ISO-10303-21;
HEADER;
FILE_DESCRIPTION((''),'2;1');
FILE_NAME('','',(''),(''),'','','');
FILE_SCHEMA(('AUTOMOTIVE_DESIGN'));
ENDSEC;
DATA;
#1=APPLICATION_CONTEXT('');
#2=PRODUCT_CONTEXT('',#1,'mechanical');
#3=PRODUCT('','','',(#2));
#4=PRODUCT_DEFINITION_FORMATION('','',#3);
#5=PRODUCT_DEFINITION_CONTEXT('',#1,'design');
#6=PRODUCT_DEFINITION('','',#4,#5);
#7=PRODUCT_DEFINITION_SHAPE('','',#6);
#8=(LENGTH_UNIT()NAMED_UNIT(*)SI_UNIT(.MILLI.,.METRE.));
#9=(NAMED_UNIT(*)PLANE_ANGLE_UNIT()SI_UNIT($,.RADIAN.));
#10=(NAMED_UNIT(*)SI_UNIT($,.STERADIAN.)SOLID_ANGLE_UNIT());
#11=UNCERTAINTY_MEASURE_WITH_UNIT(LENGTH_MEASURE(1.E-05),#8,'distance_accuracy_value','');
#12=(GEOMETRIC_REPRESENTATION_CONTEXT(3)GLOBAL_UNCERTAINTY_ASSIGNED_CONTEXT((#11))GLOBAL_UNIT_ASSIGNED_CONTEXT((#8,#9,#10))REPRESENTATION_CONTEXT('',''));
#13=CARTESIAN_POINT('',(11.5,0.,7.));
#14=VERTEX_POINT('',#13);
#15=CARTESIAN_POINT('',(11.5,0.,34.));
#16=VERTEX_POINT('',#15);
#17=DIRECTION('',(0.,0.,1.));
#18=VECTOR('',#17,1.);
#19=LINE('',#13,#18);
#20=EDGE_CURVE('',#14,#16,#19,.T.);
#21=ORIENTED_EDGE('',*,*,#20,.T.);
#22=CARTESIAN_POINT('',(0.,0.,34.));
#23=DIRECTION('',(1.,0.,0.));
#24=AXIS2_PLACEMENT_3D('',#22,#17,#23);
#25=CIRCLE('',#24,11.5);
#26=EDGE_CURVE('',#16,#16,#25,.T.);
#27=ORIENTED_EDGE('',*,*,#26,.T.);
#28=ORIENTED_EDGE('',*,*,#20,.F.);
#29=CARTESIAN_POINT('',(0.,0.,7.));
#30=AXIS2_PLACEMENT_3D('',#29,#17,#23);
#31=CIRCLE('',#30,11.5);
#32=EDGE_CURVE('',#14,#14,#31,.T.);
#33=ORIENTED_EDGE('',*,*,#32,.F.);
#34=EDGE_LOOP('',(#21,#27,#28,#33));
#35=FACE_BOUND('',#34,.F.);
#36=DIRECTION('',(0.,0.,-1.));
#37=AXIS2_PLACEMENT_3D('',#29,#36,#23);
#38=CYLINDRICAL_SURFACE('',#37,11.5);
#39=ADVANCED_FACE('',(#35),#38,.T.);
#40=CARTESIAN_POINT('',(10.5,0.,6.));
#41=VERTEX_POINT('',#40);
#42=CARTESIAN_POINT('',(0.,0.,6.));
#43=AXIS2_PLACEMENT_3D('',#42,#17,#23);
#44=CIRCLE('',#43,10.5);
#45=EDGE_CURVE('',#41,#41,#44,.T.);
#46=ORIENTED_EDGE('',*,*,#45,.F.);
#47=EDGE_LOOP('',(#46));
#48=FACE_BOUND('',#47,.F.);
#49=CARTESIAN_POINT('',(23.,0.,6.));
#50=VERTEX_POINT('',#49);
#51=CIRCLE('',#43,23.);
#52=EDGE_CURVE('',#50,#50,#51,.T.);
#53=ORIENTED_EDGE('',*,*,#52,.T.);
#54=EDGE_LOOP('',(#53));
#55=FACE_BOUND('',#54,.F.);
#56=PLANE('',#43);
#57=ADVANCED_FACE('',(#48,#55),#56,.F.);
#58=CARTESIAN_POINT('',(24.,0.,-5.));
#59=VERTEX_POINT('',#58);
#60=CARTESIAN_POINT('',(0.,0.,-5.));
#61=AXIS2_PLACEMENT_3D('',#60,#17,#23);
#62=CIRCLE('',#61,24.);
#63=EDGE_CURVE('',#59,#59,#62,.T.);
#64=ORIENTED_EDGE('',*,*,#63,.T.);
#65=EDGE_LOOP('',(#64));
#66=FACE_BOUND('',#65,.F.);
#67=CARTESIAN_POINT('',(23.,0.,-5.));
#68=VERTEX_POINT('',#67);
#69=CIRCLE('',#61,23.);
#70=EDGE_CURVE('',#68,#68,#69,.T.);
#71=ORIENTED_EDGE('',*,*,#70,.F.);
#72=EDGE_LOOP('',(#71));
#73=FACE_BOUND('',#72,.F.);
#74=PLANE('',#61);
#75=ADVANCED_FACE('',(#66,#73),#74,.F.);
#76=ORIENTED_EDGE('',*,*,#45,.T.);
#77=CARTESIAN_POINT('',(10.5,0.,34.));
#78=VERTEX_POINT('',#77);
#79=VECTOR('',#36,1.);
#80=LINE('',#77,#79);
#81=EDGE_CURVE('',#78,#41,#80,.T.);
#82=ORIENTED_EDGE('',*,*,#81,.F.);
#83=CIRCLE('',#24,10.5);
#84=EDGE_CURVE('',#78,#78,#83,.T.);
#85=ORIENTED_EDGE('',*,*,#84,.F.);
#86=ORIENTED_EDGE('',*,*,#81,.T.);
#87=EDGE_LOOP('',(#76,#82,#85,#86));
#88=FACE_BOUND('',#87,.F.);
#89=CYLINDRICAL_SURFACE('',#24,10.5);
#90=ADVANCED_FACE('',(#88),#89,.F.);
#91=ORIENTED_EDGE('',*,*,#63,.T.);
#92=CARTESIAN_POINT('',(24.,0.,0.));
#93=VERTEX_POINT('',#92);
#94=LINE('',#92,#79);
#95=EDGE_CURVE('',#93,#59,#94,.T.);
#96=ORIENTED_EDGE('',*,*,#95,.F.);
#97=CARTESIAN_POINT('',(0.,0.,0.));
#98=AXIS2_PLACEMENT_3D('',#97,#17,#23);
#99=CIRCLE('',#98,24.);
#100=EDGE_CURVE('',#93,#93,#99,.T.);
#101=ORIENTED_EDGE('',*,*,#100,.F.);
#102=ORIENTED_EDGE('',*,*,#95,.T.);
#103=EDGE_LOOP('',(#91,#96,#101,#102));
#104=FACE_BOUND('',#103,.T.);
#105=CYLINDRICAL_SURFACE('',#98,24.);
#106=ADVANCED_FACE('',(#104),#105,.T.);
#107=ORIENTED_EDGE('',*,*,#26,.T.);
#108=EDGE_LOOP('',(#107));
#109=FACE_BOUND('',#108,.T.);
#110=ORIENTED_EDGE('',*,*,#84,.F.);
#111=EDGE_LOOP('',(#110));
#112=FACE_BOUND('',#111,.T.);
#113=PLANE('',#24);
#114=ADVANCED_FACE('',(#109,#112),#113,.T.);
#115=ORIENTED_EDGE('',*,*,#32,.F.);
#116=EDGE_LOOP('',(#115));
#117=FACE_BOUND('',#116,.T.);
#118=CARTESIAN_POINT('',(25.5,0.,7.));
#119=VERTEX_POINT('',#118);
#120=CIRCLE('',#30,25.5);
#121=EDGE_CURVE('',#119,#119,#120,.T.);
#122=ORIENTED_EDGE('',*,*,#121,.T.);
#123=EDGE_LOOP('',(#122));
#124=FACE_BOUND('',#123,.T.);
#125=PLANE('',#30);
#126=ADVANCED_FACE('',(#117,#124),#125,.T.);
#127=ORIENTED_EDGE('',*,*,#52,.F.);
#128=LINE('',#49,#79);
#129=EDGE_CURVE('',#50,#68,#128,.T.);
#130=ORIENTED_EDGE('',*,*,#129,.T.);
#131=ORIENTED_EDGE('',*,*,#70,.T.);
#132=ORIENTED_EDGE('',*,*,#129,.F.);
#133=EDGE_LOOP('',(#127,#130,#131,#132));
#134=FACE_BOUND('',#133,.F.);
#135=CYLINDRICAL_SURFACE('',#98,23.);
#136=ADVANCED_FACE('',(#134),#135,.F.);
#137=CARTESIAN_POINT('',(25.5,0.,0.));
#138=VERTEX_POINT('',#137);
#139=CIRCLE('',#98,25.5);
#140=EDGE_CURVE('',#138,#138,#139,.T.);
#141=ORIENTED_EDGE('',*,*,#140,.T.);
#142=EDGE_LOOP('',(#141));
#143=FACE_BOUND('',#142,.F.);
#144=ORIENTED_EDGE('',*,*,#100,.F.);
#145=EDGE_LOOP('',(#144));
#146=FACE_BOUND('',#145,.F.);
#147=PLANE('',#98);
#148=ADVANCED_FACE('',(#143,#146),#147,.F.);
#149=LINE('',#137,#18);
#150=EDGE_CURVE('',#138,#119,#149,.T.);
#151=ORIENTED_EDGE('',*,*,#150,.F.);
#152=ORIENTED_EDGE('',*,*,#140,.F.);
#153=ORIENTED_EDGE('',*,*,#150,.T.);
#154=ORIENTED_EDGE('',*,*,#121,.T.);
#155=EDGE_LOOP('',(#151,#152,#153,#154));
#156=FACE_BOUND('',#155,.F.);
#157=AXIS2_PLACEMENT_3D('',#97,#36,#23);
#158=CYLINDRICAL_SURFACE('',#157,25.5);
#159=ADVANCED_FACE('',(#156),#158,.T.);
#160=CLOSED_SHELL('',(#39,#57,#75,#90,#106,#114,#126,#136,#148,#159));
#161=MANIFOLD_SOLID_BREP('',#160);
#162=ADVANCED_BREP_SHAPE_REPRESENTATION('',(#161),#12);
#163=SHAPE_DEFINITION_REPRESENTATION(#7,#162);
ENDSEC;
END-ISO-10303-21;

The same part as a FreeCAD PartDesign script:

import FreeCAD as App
import Part
import Sketcher
Q = App.Units.Quantity

doc = App.newDocument("Part")
body = doc.addObject("PartDesign::Body", "Body")

sketch1 = body.newObject("Sketcher::SketchObject", "Sketch")
sketch1.AttachmentSupport = (doc.getObject("XY_Plane"), [""])
sketch1.MapMode = "FlatFace"
sketch1.addGeometry([
    Part.Circle(App.Vector(0, 0, 0), App.Vector(0, 0, 1), 24),
    Part.Circle(App.Vector(0, 0, 0), App.Vector(0, 0, 1), 23),
], False)
sketch1.addConstraint([
    Sketcher.Constraint("Coincident", 0, 3, -1, 1),
    Sketcher.Constraint("Coincident", 1, 3, -1, 1),
    Sketcher.Constraint("Diameter", 0, Q("48 mm")),
    Sketcher.Constraint("Diameter", 1, Q("46 mm")),
])
pad1 = body.newObject("PartDesign::Pad", "Pad")
pad1.Profile = sketch1
pad1.Length = 5
pad1.Reversed = True

sketch2 = body.newObject("Sketcher::SketchObject", "Sketch001")
sketch2.AttachmentSupport = (doc.getObject("XY_Plane"), [""])
sketch2.MapMode = "FlatFace"
sketch2.addGeometry([
    Part.Circle(App.Vector(0, 0, 0), App.Vector(0, 0, 1), 26),
    Part.Circle(App.Vector(0, 0, 0), App.Vector(0, 0, 1), 23),
], False)
sketch2.addConstraint([
    Sketcher.Constraint("Coincident", 0, 3, -1, 1),
    Sketcher.Constraint("Coincident", 1, 3, -1, 1),
    Sketcher.Constraint("Diameter", 0, Q("51 mm")),
    Sketcher.Constraint("Diameter", 1, Q("46 mm")),
])
pad2 = body.newObject("PartDesign::Pad", "Pad001")
pad2.Profile = sketch2
pad2.Length = 7

sketch3 = body.newObject("Sketcher::SketchObject", "Sketch002")
sketch3.AttachmentSupport = (doc.getObject("XY_Plane"), [""])
sketch3.MapMode = "FlatFace"
sketch3.AttachmentOffset = App.Placement(App.Vector(0, 0, 7), App.Rotation())
sketch3.addGeometry(Part.Circle(App.Vector(0, 0, 0), App.Vector(0, 0, 1), 23), False)
sketch3.addConstraint([
    Sketcher.Constraint("Coincident", 0, 3, -1, 1),
    Sketcher.Constraint("Diameter", 0, Q("46 mm")),
])
pad3 = body.newObject("PartDesign::Pad", "Pad002")
pad3.Profile = sketch3
pad3.Length = 1
pad3.Reversed = True

sketch4 = body.newObject("Sketcher::SketchObject", "Sketch003")
sketch4.AttachmentSupport = (doc.getObject("XY_Plane"), [""])
sketch4.MapMode = "FlatFace"
sketch4.AttachmentOffset = App.Placement(App.Vector(0, 0, 7), App.Rotation())
sketch4.addGeometry(Part.Circle(App.Vector(0, 0, 0), App.Vector(0, 0, 1), 12), False)
sketch4.addConstraint([
    Sketcher.Constraint("Coincident", 0, 3, -1, 1),
    Sketcher.Constraint("Diameter", 0, Q("23 mm")),
])
pad4 = body.newObject("PartDesign::Pad", "Pad003")
pad4.Profile = sketch4
pad4.Length = 27

sketch5 = body.newObject("Sketcher::SketchObject", "Sketch004")
sketch5.AttachmentSupport = (doc.getObject("XY_Plane"), [""])
sketch5.MapMode = "FlatFace"
sketch5.AttachmentOffset = App.Placement(App.Vector(0, 0, 34), App.Rotation())
sketch5.addGeometry(Part.Circle(App.Vector(0, 0, 0), App.Vector(0, 0, 1), 10), False)
sketch5.addConstraint([
    Sketcher.Constraint("Coincident", 0, 3, -1, 1),
    Sketcher.Constraint("Diameter", 0, Q("21 mm")),
])
pocket1 = body.newObject("PartDesign::Pocket", "Pocket")
pocket1.Profile = sketch5
pocket1.Type = "ThroughAll"

doc.recompute()
